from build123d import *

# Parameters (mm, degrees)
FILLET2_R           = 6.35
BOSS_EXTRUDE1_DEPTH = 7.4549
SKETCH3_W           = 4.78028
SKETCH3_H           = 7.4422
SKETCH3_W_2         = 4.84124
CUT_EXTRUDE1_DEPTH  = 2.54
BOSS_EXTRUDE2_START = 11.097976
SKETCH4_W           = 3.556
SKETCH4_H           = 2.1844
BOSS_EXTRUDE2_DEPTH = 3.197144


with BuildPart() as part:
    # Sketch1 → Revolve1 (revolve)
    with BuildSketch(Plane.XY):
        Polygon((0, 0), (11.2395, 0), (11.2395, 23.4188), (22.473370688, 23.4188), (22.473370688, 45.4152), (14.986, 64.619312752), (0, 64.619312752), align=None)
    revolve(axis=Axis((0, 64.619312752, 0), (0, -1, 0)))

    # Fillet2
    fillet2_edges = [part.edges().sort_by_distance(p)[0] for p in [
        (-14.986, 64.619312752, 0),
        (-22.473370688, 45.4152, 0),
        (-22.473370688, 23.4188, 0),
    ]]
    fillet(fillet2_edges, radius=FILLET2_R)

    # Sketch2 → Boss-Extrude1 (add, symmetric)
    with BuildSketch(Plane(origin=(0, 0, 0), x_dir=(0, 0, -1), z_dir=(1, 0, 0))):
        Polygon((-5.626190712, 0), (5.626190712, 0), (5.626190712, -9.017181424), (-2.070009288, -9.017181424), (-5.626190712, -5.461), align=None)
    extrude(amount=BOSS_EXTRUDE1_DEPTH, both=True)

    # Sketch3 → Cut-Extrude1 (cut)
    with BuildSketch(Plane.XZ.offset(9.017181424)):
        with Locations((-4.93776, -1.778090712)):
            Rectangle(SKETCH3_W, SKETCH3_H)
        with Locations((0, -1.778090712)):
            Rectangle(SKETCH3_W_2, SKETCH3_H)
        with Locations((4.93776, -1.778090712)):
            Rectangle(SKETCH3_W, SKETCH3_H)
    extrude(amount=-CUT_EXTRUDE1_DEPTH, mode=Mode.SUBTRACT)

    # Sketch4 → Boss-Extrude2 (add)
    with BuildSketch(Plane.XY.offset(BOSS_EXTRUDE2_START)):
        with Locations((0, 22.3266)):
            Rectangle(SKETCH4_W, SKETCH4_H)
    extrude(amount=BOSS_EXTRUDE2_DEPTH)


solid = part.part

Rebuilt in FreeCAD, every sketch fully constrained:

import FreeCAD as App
import Part
import Sketcher
from FreeCAD import Vector
Q = App.Units.Quantity


def edges_at(feature, points):
    """Names of the edges that pass closest to the given points."""
    edges = feature.Shape.Edges
    near = lambda p: min(range(len(edges)), key=lambda i: edges[i].distToShape(Part.Vertex(*p))[0])
    return sorted({f"Edge{near(p) + 1}" for p in points})


def add_polygon(sketch, points):
    """Adds a closed chain of lines whose ends are joined by coincident constraints."""
    first, n = sketch.GeometryCount, len(points)
    for a, b in zip(points, points[1:] + points[:1]):
        sketch.addGeometry(Part.LineSegment(App.Vector(*a, 0), App.Vector(*b, 0)), False)
    for i in range(n):
        sketch.addConstraint(Sketcher.Constraint("Coincident", first + i, 2, first + (i + 1) % n, 1))

doc = App.newDocument("Part")
body = doc.addObject("PartDesign::Body", "Body")

# Sketch on XY plane
sketch1 = doc.addObject("Sketcher::SketchObject", "Sketch")
body.addObject(sketch1)
sketch1.AttachmentSupport = (doc.XY_Plane, [""])
sketch1.MapMode = "FlatFace"
add_polygon(sketch1, [(0, 0), (11, 0), (11, 23), (22, 23), (22, 45), (15, 65), (0, 65)])  # lines 0-6
sketch1.addConstraint([
    Sketcher.Constraint("Horizontal", 0),
    Sketcher.Constraint("Vertical", 1),
    Sketcher.Constraint("Horizontal", 2),
    Sketcher.Constraint("Vertical", 3),
    Sketcher.Constraint("Horizontal", 5),
    Sketcher.Constraint("Vertical", 6),
    Sketcher.Constraint("Coincident", 6, 2, -1, 1),
    Sketcher.Constraint("DistanceX", 5, 2, 5, 1, Q("0.59 in")),
    Sketcher.Constraint("Angle", 4, Q("111.3 deg")),
    Sketcher.Constraint("DistanceY", 1, 1, 1, 2, Q("0.922 in")),
    Sketcher.Constraint("DistanceY", 3, 1, 3, 2, Q("0.866 in")),
    Sketcher.Constraint("DistanceX", 0, 1, 0, 2, Q("0.4425 in")),
    Sketcher.Constraint("Distance", 4, Q("0.8115 in")),
])
revolution = doc.addObject("PartDesign::Revolution", "Revolution")
body.addObject(revolution)
revolution.Profile = sketch1
revolution.ReferenceAxis = (sketch1, ["V_Axis"])
revolution.Angle = 360
doc.recompute()

fillet = doc.addObject("PartDesign::Fillet", "Fillet")
body.addObject(fillet)
fillet.Base = (revolution, edges_at(revolution, [(-14.986, 64.619, 0), (-22.473, 45.415, 0), (-22.473, 23.419, 0)]))
fillet.Radius = Q("0.25 in")

# Sketch on YZ plane
sketch2 = doc.addObject("Sketcher::SketchObject", "Sketch001")
body.addObject(sketch2)
sketch2.AttachmentSupport = (doc.YZ_Plane, [""])
sketch2.MapMode = "FlatFace"
add_polygon(sketch2, [(0, -6), (0, 6), (-5, 6), (-9, 2), (-9, -6)])  # lines 0-4
sketch2.addConstraint([
    Sketcher.Constraint("Vertical", 0),
    Sketcher.Constraint("Horizontal", 1),
    Sketcher.Constraint("Vertical", 3),
    Sketcher.Constraint("Horizontal", 4),
    Sketcher.Constraint("Symmetric", 0, 2, 4, 2, -1, 1),
    Sketcher.Constraint("Angle", 2, Q("-135 deg")),
    Sketcher.Constraint("DistanceX", 1, 2, 1, 1, Q("0.215 in")),
    Sketcher.Constraint("DistanceY", 3, 2, 3, 1, Q("0.303 in")),
    Sketcher.Constraint("Distance", 2, Q("0.198 in")),
])
pad1 = doc.addObject("PartDesign::Pad", "Pad")
body.addObject(pad1)
pad1.Profile = sketch2
pad1.Length = Q("0.587 in")
pad1.Midplane = True

# Sketch on XZ plane
sketch3 = doc.addObject("Sketcher::SketchObject", "Sketch002")
body.addObject(sketch3)
sketch3.AttachmentSupport = (doc.XZ_Plane, [""])
sketch3.MapMode = "FlatFace"
sketch3.AttachmentOffset = App.Placement(Vector(0, 0, 9.017181), App.Rotation())
add_polygon(sketch3, [(-7.3, 1.9), (-7.3, -5.5), (-2.5, -5.5), (-2.5, 1.9)])  # lines 0-3
add_polygon(sketch3, [(-2.4, 1.9), (-2.4, -5.5), (2.4, -5.5), (2.4, 1.9)])  # lines 4-7
add_polygon(sketch3, [(2.5, 1.9), (2.5, -5.5), (7.3, -5.5), (7.3, 1.9)])  # lines 8-11
sketch3.addConstraint([
    Sketcher.Constraint("Vertical", 0),
    Sketcher.Constraint("Horizontal", 1),
    Sketcher.Constraint("Vertical", 2),
    Sketcher.Constraint("Horizontal", 3),
    Sketcher.Constraint("Vertical", 4),
    Sketcher.Constraint("Horizontal", 5),
    Sketcher.Constraint("Vertical", 6),
    Sketcher.Constraint("Horizontal", 7),
    Sketcher.Constraint("Vertical", 8),
    Sketcher.Constraint("Horizontal", 9),
    Sketcher.Constraint("Vertical", 10),
    Sketcher.Constraint("Horizontal", 11),
    Sketcher.Constraint("Symmetric", 1, 2, 8, 2, -2),
    Sketcher.Constraint("Symmetric", 3, 2, 10, 2, -2),
    Sketcher.Constraint("Horizontal", 1, 2, 4, 2),
    Sketcher.Constraint("Horizontal", 3, 2, 6, 2),
    Sketcher.Constraint("DistanceY", 0, 2, 0, 1, Q("0.293 in")),
    Sketcher.Constraint("DistanceX", 1, 1, 1, 2, Q("0.1882 in")),
    Sketcher.Constraint("DistanceX", 5, 1, 5, 2, Q("0.1906 in")),
    Sketcher.Constraint("DistanceX", 1, 2, 4, 2, Q("0.005 in")),
    Sketcher.Constraint("DistanceX", 5, 2, 8, 2, Q("0.005 in")),
    Sketcher.Constraint("DistanceY", 0, 2, -1, 1, 5.499191),
])
pocket1 = doc.addObject("PartDesign::Pocket", "Pocket")
body.addObject(pocket1)
pocket1.Profile = sketch3
pocket1.Length = Q("0.1 in")

# Sketch on XY plane
sketch4 = doc.addObject("Sketcher::SketchObject", "Sketch003")
body.addObject(sketch4)
sketch4.AttachmentSupport = (doc.XY_Plane, [""])
sketch4.MapMode = "FlatFace"
sketch4.AttachmentOffset = App.Placement(Vector(0, 0, 11.097976), App.Rotation())
add_polygon(sketch4, [(-1.8, 23.4), (-1.8, 21.2), (1.8, 21.2), (1.8, 23.4)])  # lines 0-3
sketch4.addConstraint([
    Sketcher.Constraint("Vertical", 0),
    Sketcher.Constraint("Horizontal", 1),
    Sketcher.Constraint("Vertical", 2),
    Sketcher.Constraint("Horizontal", 3),
    Sketcher.Constraint("DistanceX", 1, 1, 1, 2, Q("0.14 in")),
    Sketcher.Constraint("DistanceY", 0, 2, 0, 1, Q("0.086 in")),
    Sketcher.Constraint("DistanceX", 0, 2, -1, 1, Q("0.07 in")),
    Sketcher.Constraint("DistanceY", -1, 1, 0, 2, Q("0.836 in")),
])
pad2 = doc.addObject("PartDesign::Pad", "Pad001")
body.addObject(pad2)
pad2.Profile = sketch4
pad2.Length = 3.197144

doc.recompute()
